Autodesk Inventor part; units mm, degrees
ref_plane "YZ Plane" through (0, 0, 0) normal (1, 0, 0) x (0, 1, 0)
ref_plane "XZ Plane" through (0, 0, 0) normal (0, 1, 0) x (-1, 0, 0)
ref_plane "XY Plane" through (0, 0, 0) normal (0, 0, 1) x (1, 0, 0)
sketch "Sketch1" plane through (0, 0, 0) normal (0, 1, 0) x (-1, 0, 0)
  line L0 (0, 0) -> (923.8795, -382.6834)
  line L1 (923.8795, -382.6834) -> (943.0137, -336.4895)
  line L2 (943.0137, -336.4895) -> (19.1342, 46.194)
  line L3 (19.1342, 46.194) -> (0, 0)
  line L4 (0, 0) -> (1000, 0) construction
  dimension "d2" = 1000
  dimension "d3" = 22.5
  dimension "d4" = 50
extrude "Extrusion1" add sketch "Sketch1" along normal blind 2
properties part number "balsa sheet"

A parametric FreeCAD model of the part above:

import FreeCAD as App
import Part
import Sketcher
Q = App.Units.Quantity


def add_polygon(sketch, points):
    """Adds a closed chain of lines whose ends are joined by coincident constraints."""
    first, n = sketch.GeometryCount, len(points)
    for a, b in zip(points, points[1:] + points[:1]):
        sketch.addGeometry(Part.LineSegment(App.Vector(*a, 0), App.Vector(*b, 0)), False)
    for i in range(n):
        sketch.addConstraint(Sketcher.Constraint("Coincident", first + i, 2, first + (i + 1) % n, 1))

doc = App.newDocument("Part")
body = doc.addObject("PartDesign::Body", "Body")

# Sketch on XZ plane
sketch1 = body.newObject("Sketcher::SketchObject", "Sketch")
sketch1.AttachmentSupport = (doc.getObject("XZ_Plane"), [""])
sketch1.MapMode = "FlatFace"
add_polygon(sketch1, [(-19, 46), (0, 0), (-924, -383), (-943, -336)])  # lines 0-3
sketch1.addConstraint(Sketcher.Constraint("Coincident", 0, 2, -1, 1))
sketch1.addConstraint(Sketcher.Constraint("Perpendicular", 0, 1))
sketch1.addConstraint(Sketcher.Constraint("Perpendicular", 1, 2))
sketch1.addConstraint(Sketcher.Constraint("Perpendicular", 2, 3))
sketch1.addConstraint(Sketcher.Constraint("Distance", 0, 50.0))
sketch1.addConstraint(Sketcher.Constraint("Distance", 1, 1000.0))
sketch1.addConstraint(Sketcher.Constraint("Angle", 3, Q("22.5 deg")))
pad1 = body.newObject("PartDesign::Pad", "Pad")
pad1.Profile = sketch1
pad1.Length = 2
pad1.Reversed = True

doc.recompute()
